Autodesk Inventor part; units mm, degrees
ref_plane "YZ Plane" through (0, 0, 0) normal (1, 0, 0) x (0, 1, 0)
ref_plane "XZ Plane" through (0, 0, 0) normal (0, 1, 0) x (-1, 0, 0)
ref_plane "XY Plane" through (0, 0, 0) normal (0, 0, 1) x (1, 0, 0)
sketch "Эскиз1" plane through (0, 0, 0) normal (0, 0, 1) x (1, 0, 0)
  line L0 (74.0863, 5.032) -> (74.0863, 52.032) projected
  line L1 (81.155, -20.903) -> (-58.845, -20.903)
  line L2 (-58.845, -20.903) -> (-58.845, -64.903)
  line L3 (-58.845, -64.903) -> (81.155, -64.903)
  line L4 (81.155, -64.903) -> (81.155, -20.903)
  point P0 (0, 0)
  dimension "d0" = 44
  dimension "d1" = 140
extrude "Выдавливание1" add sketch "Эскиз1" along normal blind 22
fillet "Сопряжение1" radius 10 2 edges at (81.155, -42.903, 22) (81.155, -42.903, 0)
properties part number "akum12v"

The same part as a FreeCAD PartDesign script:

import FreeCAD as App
import Part
import Sketcher


def edges_at(feature, points):
    """Names of the edges that pass closest to the given points."""
    edges = feature.Shape.Edges
    near = lambda p: min(range(len(edges)), key=lambda i: edges[i].distToShape(Part.Vertex(*p))[0])
    return sorted({f"Edge{near(p) + 1}" for p in points})

doc = App.newDocument("Part")
body = doc.addObject("PartDesign::Body", "Body")

# Sketch on XY plane
sketch1 = body.newObject("Sketcher::SketchObject", "Sketch")
sketch1.AttachmentSupport = (doc.getObject("XY_Plane"), [""])
sketch1.MapMode = "FlatFace"
sketch1.addGeometry([
    Part.LineSegment(App.Vector(81, -65, 0), App.Vector(81, -21, 0)),
    Part.LineSegment(App.Vector(81, -21, 0), App.Vector(-59, -21, 0)),
    Part.LineSegment(App.Vector(-59, -21, 0), App.Vector(-59, -65, 0)),
    Part.LineSegment(App.Vector(-59, -65, 0), App.Vector(81, -65, 0)),
], False)
sketch1.addConstraint([
    Sketcher.Constraint("Coincident", 0, 2, 1, 1),
    Sketcher.Constraint("Coincident", 1, 2, 2, 1),
    Sketcher.Constraint("Coincident", 2, 2, 3, 1),
    Sketcher.Constraint("Coincident", 3, 2, 0, 1),
    Sketcher.Constraint("Vertical", 0),
    Sketcher.Constraint("Horizontal", 1),
    Sketcher.Constraint("Vertical", 2),
    Sketcher.Constraint("Horizontal", 3),
    Sketcher.Constraint("DistanceX", 1, 2, 1, 1, 140.0),
    Sketcher.Constraint("DistanceY", 0, 1, 0, 2, 44.0),
    Sketcher.Constraint("DistanceX", -1, 1, 0, 2, 81.155),
    Sketcher.Constraint("DistanceY", 0, 2, -1, 1, 20.903),
])
pad1 = body.newObject("PartDesign::Pad", "Pad")
pad1.Profile = sketch1
pad1.Length = 22
doc.recompute()

fillet = body.newObject("PartDesign::Fillet", "Fillet")
fillet.Base = (pad1, edges_at(pad1, [(81.155, -42.903, 22), (81.155, -42.903, 0)]))
fillet.Radius = 10

doc.recompute()
